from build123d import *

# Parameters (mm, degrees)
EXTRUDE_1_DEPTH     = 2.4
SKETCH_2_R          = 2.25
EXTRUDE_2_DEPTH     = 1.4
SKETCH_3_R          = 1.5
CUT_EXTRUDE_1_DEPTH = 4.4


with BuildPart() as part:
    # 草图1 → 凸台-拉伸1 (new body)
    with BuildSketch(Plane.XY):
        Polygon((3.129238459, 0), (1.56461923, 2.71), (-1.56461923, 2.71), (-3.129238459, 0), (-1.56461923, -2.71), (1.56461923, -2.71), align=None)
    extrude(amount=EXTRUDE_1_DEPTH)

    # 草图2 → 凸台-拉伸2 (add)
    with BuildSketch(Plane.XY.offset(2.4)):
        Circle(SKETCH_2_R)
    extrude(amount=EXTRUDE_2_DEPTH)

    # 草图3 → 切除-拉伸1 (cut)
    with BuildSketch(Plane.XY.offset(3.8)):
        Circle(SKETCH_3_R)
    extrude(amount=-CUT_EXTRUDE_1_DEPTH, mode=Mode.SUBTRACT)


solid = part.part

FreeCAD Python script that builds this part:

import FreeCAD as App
import Part
import Sketcher

V = App.Vector
Q = App.Units.Quantity


def add_polygon(sketch, points):
    """Adds a closed chain of lines whose ends are joined by coincident constraints."""
    first, n = sketch.GeometryCount, len(points)
    for a, b in zip(points, points[1:] + points[:1]):
        sketch.addGeometry(Part.LineSegment(App.Vector(*a, 0), App.Vector(*b, 0)), False)
    for i in range(n):
        sketch.addConstraint(Sketcher.Constraint("Coincident", first + i, 2, first + (i + 1) % n, 1))

doc = App.newDocument("Part")
body = doc.addObject("PartDesign::Body", "Body")

# Sketch on XY plane
sketch1 = body.newObject("Sketcher::SketchObject", "Sketch")
sketch1.AttachmentSupport = (doc.getObject("XY_Plane"), [""])
sketch1.MapMode = "FlatFace"
add_polygon(sketch1, [(3.1, 0), (1.6, 2.7), (-1.6, 2.7), (-3.1, 0), (-1.6, -2.7), (1.6, -2.7)])  # lines 0-5
sketch1.addConstraint([
    Sketcher.Constraint("Horizontal", 1),
    Sketcher.Constraint("Horizontal", 4),
    Sketcher.Constraint("Symmetric", 0, 2, 3, 2, -1, 1),
    Sketcher.Constraint("Symmetric", 2, 2, 5, 2, -1, 1),
    Sketcher.Constraint("PointOnObject", 2, 2, -1),
    Sketcher.Constraint("Parallel", 2, 5),
    Sketcher.Constraint("Vertical", 1, 2, 3, 2),
    Sketcher.Constraint("Angle", 0, Q("120 deg")),
    Sketcher.Constraint("DistanceY", -1, 1, 0, 2, Q("2.71 mm")),
    Sketcher.Constraint("DistanceX", 1, 2, 1, 1, Q("3.129238 mm")),
])
pad1 = body.newObject("PartDesign::Pad", "Pad")
pad1.Profile = sketch1
pad1.Length = 2.4

# Sketch on XY plane
sketch2 = body.newObject("Sketcher::SketchObject", "Sketch001")
sketch2.AttachmentSupport = (doc.getObject("XY_Plane"), [""])
sketch2.MapMode = "FlatFace"
sketch2.AttachmentOffset = App.Placement(V(0, 0, 2.4), App.Rotation())
sketch2.addGeometry(Part.Circle(V(0, 0, 0), V(0, 0, 1), 2.2), False)
sketch2.addConstraint([
    Sketcher.Constraint("Coincident", 0, 3, -1, 1),
    Sketcher.Constraint("Diameter", 0, Q("4.5 mm")),
])
pad2 = body.newObject("PartDesign::Pad", "Pad001")
pad2.Profile = sketch2
pad2.Length = 1.4

# Sketch on XY plane
sketch3 = body.newObject("Sketcher::SketchObject", "Sketch002")
sketch3.AttachmentSupport = (doc.getObject("XY_Plane"), [""])
sketch3.MapMode = "FlatFace"
sketch3.AttachmentOffset = App.Placement(V(0, 0, 3.8), App.Rotation())
sketch3.addGeometry(Part.Circle(V(0, 0, 0), V(0, 0, 1), 1.5), False)
sketch3.addConstraint([
    Sketcher.Constraint("Coincident", 0, 3, -1, 1),
    Sketcher.Constraint("Diameter", 0, Q("3 mm")),
])
pocket1 = body.newObject("PartDesign::Pocket", "Pocket")
pocket1.Profile = sketch3
pocket1.Length = 4.4

doc.recompute()
